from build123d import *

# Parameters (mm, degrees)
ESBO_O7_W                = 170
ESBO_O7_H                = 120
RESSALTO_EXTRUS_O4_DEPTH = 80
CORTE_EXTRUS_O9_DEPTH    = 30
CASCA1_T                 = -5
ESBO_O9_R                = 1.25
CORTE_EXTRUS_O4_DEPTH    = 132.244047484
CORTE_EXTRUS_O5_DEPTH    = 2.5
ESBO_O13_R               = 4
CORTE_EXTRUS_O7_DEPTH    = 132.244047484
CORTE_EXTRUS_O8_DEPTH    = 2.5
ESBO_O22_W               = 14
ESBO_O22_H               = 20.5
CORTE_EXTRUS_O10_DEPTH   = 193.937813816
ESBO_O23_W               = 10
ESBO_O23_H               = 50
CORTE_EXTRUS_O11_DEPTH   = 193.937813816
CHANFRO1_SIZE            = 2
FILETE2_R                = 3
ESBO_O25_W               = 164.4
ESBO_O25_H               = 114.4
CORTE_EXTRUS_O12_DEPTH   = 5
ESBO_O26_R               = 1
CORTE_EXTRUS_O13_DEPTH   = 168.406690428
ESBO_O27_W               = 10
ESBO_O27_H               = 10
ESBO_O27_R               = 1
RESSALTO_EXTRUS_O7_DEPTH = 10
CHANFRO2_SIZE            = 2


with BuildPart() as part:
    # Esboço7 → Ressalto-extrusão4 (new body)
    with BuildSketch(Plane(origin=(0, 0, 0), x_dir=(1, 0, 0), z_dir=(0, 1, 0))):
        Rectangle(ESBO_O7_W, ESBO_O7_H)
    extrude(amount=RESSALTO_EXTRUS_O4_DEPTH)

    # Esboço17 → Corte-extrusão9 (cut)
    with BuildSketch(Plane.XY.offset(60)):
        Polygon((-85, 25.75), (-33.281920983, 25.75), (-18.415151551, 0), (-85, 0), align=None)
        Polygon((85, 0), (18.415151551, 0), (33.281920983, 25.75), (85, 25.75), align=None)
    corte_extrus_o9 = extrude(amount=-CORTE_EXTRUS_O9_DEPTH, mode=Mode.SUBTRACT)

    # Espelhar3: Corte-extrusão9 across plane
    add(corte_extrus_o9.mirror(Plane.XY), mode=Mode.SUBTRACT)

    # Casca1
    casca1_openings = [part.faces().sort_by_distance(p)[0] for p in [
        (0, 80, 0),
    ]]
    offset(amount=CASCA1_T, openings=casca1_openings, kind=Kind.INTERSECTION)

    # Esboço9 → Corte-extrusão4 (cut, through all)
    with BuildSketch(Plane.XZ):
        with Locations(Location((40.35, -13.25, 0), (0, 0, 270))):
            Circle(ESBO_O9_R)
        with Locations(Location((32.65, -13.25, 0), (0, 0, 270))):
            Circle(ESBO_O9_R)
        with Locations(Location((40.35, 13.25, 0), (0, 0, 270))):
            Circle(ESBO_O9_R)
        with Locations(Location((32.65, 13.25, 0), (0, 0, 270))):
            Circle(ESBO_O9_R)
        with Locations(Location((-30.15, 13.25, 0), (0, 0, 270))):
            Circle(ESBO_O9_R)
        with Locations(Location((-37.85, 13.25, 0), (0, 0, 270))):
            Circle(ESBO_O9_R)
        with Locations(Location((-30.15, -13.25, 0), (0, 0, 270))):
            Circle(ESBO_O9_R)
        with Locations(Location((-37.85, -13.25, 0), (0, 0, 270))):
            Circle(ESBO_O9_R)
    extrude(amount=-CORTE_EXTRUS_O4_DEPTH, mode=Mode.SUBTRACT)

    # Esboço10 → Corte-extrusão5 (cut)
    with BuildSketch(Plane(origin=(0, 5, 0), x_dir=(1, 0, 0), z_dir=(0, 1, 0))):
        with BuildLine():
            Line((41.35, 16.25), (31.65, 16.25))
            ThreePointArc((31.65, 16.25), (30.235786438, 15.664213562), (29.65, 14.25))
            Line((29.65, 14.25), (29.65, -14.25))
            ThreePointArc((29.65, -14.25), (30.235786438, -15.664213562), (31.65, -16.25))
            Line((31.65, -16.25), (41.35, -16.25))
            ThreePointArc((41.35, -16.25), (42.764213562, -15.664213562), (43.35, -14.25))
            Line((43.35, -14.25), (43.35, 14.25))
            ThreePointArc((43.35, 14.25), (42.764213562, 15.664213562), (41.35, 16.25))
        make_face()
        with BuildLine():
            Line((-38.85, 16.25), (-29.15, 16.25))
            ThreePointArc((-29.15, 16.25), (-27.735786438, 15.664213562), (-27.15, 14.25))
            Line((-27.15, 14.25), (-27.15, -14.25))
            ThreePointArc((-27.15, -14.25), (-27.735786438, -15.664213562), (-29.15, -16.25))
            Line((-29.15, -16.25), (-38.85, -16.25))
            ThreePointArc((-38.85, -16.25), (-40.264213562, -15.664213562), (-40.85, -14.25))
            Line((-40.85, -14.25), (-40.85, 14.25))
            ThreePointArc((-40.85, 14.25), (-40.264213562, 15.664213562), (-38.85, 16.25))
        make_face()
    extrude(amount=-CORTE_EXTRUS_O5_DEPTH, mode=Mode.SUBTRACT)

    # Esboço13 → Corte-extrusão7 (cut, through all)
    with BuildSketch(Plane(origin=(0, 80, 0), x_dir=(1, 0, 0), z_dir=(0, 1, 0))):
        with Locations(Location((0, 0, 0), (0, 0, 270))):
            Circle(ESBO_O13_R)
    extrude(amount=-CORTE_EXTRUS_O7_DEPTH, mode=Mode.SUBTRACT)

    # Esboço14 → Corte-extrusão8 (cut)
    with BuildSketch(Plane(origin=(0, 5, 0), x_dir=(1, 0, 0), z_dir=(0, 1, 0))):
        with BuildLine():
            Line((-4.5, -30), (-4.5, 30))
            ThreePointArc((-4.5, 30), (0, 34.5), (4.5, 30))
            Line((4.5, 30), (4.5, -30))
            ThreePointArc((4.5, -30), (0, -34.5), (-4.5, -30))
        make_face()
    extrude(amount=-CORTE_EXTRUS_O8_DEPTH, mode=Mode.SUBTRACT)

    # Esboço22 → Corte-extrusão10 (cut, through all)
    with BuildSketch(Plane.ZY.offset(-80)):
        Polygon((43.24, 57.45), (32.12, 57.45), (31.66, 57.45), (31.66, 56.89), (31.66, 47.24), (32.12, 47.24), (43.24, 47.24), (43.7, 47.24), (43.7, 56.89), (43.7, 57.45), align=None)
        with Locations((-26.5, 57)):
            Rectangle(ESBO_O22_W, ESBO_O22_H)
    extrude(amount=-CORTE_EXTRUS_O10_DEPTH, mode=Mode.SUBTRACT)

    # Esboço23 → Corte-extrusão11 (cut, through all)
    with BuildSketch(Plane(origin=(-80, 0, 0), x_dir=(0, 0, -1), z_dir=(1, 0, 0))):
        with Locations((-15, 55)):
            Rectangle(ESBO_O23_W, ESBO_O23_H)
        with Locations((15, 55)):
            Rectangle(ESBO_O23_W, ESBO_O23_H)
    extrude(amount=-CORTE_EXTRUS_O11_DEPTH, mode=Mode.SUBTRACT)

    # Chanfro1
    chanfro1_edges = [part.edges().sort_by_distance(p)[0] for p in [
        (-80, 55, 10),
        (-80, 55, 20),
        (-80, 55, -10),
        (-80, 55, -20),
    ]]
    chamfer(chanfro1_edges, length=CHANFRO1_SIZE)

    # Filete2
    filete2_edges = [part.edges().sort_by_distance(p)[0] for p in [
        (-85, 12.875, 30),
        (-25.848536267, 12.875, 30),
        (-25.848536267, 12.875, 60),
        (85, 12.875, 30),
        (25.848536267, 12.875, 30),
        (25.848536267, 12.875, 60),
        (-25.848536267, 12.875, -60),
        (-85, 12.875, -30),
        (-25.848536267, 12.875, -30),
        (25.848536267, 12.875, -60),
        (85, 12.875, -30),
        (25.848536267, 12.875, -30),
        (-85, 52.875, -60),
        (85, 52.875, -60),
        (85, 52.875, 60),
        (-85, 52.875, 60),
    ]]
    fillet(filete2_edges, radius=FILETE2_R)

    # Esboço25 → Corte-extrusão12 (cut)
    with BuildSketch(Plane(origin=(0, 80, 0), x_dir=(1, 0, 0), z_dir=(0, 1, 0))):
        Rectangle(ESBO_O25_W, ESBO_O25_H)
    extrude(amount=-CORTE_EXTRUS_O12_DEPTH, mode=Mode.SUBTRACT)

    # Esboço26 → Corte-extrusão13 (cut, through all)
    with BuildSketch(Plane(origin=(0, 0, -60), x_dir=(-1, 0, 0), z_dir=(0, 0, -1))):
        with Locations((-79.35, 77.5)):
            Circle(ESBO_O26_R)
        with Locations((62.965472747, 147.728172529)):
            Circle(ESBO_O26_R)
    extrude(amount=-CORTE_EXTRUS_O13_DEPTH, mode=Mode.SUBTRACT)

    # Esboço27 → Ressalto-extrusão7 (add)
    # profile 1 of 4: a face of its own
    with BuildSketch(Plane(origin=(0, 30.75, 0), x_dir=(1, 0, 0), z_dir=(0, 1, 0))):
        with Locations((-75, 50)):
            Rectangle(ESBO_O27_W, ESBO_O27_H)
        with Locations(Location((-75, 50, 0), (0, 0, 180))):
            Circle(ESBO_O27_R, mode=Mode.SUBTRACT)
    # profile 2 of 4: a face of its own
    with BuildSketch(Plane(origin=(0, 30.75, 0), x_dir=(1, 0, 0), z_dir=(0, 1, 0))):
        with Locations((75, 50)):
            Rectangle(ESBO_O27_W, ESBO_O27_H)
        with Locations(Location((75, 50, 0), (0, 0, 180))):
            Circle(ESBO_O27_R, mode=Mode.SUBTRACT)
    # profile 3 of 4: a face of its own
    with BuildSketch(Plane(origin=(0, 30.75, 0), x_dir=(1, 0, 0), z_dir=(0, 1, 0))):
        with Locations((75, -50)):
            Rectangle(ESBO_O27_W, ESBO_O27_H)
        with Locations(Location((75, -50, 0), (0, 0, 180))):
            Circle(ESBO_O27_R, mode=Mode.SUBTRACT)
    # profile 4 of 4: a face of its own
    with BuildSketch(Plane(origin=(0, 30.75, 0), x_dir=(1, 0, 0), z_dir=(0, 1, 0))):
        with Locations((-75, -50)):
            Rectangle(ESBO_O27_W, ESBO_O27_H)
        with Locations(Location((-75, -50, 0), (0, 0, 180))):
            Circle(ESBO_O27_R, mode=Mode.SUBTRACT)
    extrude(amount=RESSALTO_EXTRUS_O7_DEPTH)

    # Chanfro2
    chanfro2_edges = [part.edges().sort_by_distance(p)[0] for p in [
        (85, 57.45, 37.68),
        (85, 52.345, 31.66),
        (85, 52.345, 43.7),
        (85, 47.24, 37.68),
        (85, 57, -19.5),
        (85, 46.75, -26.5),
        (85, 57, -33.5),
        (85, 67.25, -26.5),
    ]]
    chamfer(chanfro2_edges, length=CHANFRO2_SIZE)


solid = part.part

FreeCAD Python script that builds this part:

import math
import FreeCAD as App
import Part
import Sketcher
from FreeCAD import Vector
Q = App.Units.Quantity


def edges_at(feature, points):
    """Names of the edges that pass closest to the given points."""
    edges = feature.Shape.Edges
    near = lambda p: min(range(len(edges)), key=lambda i: edges[i].distToShape(Part.Vertex(*p))[0])
    return sorted({f"Edge{near(p) + 1}" for p in points})


def faces_at(feature, points):
    """Names of the faces that lie closest to the given points."""
    faces = feature.Shape.Faces
    near = lambda p: min(range(len(faces)), key=lambda i: faces[i].distToShape(Part.Vertex(*p))[0])
    return sorted({f"Face{near(p) + 1}" for p in points})

doc = App.newDocument("Part")
body = doc.addObject("PartDesign::Body", "Body")

sketch1 = body.newObject("Sketcher::SketchObject", "Sketch")
sketch1.AttachmentSupport = (doc.getObject("XZ_Plane"), [""])
sketch1.MapMode = "FlatFace"
sketch1.addGeometry(Part.LineSegment(Vector(-85, -60, 0), Vector(-85, 60, 0)), False)
sketch1.addGeometry(Part.LineSegment(Vector(-85, 60, 0), Vector(85, 60, 0)), False)
sketch1.addGeometry(Part.LineSegment(Vector(85, 60, 0), Vector(85, -60, 0)), False)
sketch1.addGeometry(Part.LineSegment(Vector(85, -60, 0), Vector(-85, -60, 0)), False)
sketch1.addConstraint(Sketcher.Constraint("Coincident", 0, 2, 1, 1))
sketch1.addConstraint(Sketcher.Constraint("Coincident", 1, 2, 2, 1))
sketch1.addConstraint(Sketcher.Constraint("Coincident", 2, 2, 3, 1))
sketch1.addConstraint(Sketcher.Constraint("Coincident", 3, 2, 0, 1))
sketch1.addConstraint(Sketcher.Constraint("Vertical", 0))
sketch1.addConstraint(Sketcher.Constraint("Horizontal", 1))
sketch1.addConstraint(Sketcher.Constraint("Vertical", 2))
sketch1.addConstraint(Sketcher.Constraint("Horizontal", 3))
sketch1.addConstraint(Sketcher.Constraint("Symmetric", 0, 2, 2, 2, -1, 1))
sketch1.addConstraint(Sketcher.Constraint("DistanceX", 1, 1, 1, 2, Q("170 mm")))
sketch1.addConstraint(Sketcher.Constraint("DistanceY", 0, 1, 0, 2, Q("120 mm")))
pad1 = body.newObject("PartDesign::Pad", "Pad")
pad1.Profile = sketch1
pad1.Length = 80
pad1.Reversed = True

sketch2 = body.newObject("Sketcher::SketchObject", "Sketch001")
sketch2.AttachmentSupport = (doc.getObject("XY_Plane"), [""])
sketch2.MapMode = "FlatFace"
sketch2.AttachmentOffset = App.Placement(Vector(0, 0, 60), App.Rotation())
sketch2.addGeometry(Part.LineSegment(Vector(-33.281921, 25.75, 0), Vector(-85, 25.75, 0)), False)
sketch2.addGeometry(Part.LineSegment(Vector(-85, 25.75, 0), Vector(-85, 0, 0)), False)
sketch2.addGeometry(Part.LineSegment(Vector(-85, 0, 0), Vector(-18.415152, 0, 0)), False)
sketch2.addGeometry(Part.LineSegment(Vector(-18.415152, 0, 0), Vector(-33.281921, 25.75, 0)), False)
sketch2.addGeometry(Part.LineSegment(Vector(18.415152, 0, 0), Vector(85, 0, 0)), False)
sketch2.addGeometry(Part.LineSegment(Vector(85, 0, 0), Vector(85, 25.75, 0)), False)
sketch2.addGeometry(Part.LineSegment(Vector(85, 25.75, 0), Vector(33.281921, 25.75, 0)), False)
sketch2.addGeometry(Part.LineSegment(Vector(33.281921, 25.75, 0), Vector(18.415152, 0, 0)), False)
sketch2.addConstraint(Sketcher.Constraint("Coincident", 0, 2, 1, 1))
sketch2.addConstraint(Sketcher.Constraint("Coincident", 1, 2, 2, 1))
sketch2.addConstraint(Sketcher.Constraint("Coincident", 2, 2, 3, 1))
sketch2.addConstraint(Sketcher.Constraint("Coincident", 3, 2, 0, 1))
sketch2.addConstraint(Sketcher.Constraint("Coincident", 4, 2, 5, 1))
sketch2.addConstraint(Sketcher.Constraint("Coincident", 5, 2, 6, 1))
sketch2.addConstraint(Sketcher.Constraint("Coincident", 6, 2, 7, 1))
sketch2.addConstraint(Sketcher.Constraint("Coincident", 7, 2, 4, 1))
sketch2.addConstraint(Sketcher.Constraint("Horizontal", 0))
sketch2.addConstraint(Sketcher.Constraint("Vertical", 1))
sketch2.addConstraint(Sketcher.Constraint("Horizontal", 2))
sketch2.addConstraint(Sketcher.Constraint("Horizontal", 4))
sketch2.addConstraint(Sketcher.Constraint("Vertical", 5))
sketch2.addConstraint(Sketcher.Constraint("Horizontal", 6))
sketch2.addConstraint(Sketcher.Constraint("Symmetric", 1, 2, 4, 2, -1, 1))
sketch2.addConstraint(Sketcher.Constraint("Symmetric", 3, 2, 6, 2, -2))
sketch2.addConstraint(Sketcher.Constraint("Symmetric", 2, 2, 7, 2, -2))
sketch2.addConstraint(Sketcher.Constraint("Angle", 3, Q("120 deg")))
sketch2.addConstraint(Sketcher.Constraint("DistanceX", 0, 2, -1, 1, Q("85 mm")))
sketch2.addConstraint(Sketcher.Constraint("DistanceY", 1, 2, 1, 1, Q("25.75 mm")))
sketch2.addConstraint(Sketcher.Constraint("DistanceX", 0, 2, 0, 1, Q("51.718079 mm")))
pocket1 = body.newObject("PartDesign::Pocket", "Pocket")
pocket1.Profile = sketch2
pocket1.Length = 30
doc.recompute()

mirrored = body.newObject("PartDesign::Mirrored", "Mirrored")
mirrored.Originals = [pocket1]
mirrored.MirrorPlane = (doc.getObject("XY_Plane"), [""])
body.Tip = mirrored
doc.recompute()

thickness = body.newObject("PartDesign::Thickness", "Thickness")
thickness.Base = (mirrored, faces_at(mirrored, [(0, 80, 0)]))
thickness.Value = 5
thickness.Reversed = True
thickness.Join = "Intersection"

sketch3 = body.newObject("Sketcher::SketchObject", "Sketch002")
sketch3.AttachmentSupport = (doc.getObject("XZ_Plane"), [""])
sketch3.MapMode = "FlatFace"
sketch3.addGeometry(Part.Circle(Vector(40.35, -13.25, 0), Vector(0, 0, 1), 1.25), False)
sketch3.addGeometry(Part.Circle(Vector(32.65, -13.25, 0), Vector(0, 0, 1), 1.25), False)
sketch3.addGeometry(Part.Circle(Vector(40.35, 13.25, 0), Vector(0, 0, 1), 1.25), False)
sketch3.addGeometry(Part.Circle(Vector(32.65, 13.25, 0), Vector(0, 0, 1), 1.25), False)
sketch3.addGeometry(Part.Circle(Vector(-30.15, 13.25, 0), Vector(0, 0, 1), 1.25), False)
sketch3.addGeometry(Part.Circle(Vector(-37.85, 13.25, 0), Vector(0, 0, 1), 1.25), False)
sketch3.addGeometry(Part.Circle(Vector(-30.15, -13.25, 0), Vector(0, 0, 1), 1.25), False)
sketch3.addGeometry(Part.Circle(Vector(-37.85, -13.25, 0), Vector(0, 0, 1), 1.25), False)
sketch3.addConstraint(Sketcher.Constraint("Equal", 0, 1))
sketch3.addConstraint(Sketcher.Constraint("Equal", 1, 2))
sketch3.addConstraint(Sketcher.Constraint("Equal", 2, 3))
sketch3.addConstraint(Sketcher.Constraint("Equal", 3, 4))
sketch3.addConstraint(Sketcher.Constraint("Equal", 4, 5))
sketch3.addConstraint(Sketcher.Constraint("Equal", 5, 6))
sketch3.addConstraint(Sketcher.Constraint("Equal", 6, 7))
sketch3.addConstraint(Sketcher.Constraint("Symmetric", 0, 3, 2, 3, -1))
sketch3.addConstraint(Sketcher.Constraint("Symmetric", 1, 3, 3, 3, -1))
sketch3.addConstraint(Sketcher.Constraint("Symmetric", 4, 3, 6, 3, -1))
sketch3.addConstraint(Sketcher.Constraint("Symmetric", 5, 3, 7, 3, -1))
sketch3.addConstraint(Sketcher.Constraint("Horizontal", 0, 3, 1, 3))
sketch3.addConstraint(Sketcher.Constraint("Horizontal", 3, 3, 4, 3))
sketch3.addConstraint(Sketcher.Constraint("Horizontal", 4, 3, 5, 3))
sketch3.addConstraint(Sketcher.Constraint("Diameter", 0, Q("2.5 mm")))
sketch3.addConstraint(Sketcher.Constraint("DistanceX", 1, 3, 0, 3, Q("7.7 mm")))
sketch3.addConstraint(Sketcher.Constraint("DistanceY", 0, 3, 2, 3, Q("26.5 mm")))
sketch3.addConstraint(Sketcher.Constraint("DistanceX", 4, 3, 3, 3, Q("62.8 mm")))
sketch3.addConstraint(Sketcher.Constraint("DistanceX", 5, 3, 4, 3, Q("7.7 mm")))
sketch3.addConstraint(Sketcher.Constraint("DistanceX", -1, 1, 0, 3, Q("40.35 mm")))
pocket2 = body.newObject("PartDesign::Pocket", "Pocket001")
pocket2.Profile = sketch3
pocket2.Type = "ThroughAll"

sketch4 = body.newObject("Sketcher::SketchObject", "Sketch003")
sketch4.AttachmentSupport = (doc.getObject("XZ_Plane"), [""])
sketch4.MapMode = "FlatFace"
sketch4.AttachmentOffset = App.Placement(Vector(0, 0, -5), App.Rotation())
sketch4.addGeometry(Part.LineSegment(Vector(41.35, -16.25, 0), Vector(31.65, -16.25, 0)), False)
sketch4.addGeometry(Part.ArcOfCircle(Part.Circle(Vector(31.65, -14.25, 0), Vector(0, 0, 1), 2), math.radians(-180), math.radians(-90)), False)
sketch4.addGeometry(Part.LineSegment(Vector(29.65, -14.25, 0), Vector(29.65, 14.25, 0)), False)
sketch4.addGeometry(Part.ArcOfCircle(Part.Circle(Vector(31.65, 14.25, 0), Vector(0, 0, 1), 2), math.radians(90), math.radians(180)), False)
sketch4.addGeometry(Part.LineSegment(Vector(31.65, 16.25, 0), Vector(41.35, 16.25, 0)), False)
sketch4.addGeometry(Part.ArcOfCircle(Part.Circle(Vector(41.35, 14.25, 0), Vector(0, 0, 1), 2), math.radians(0), math.radians(90)), False)
sketch4.addGeometry(Part.LineSegment(Vector(43.35, 14.25, 0), Vector(43.35, -14.25, 0)), False)
sketch4.addGeometry(Part.ArcOfCircle(Part.Circle(Vector(41.35, -14.25, 0), Vector(0, 0, 1), 2), math.radians(-90), math.radians(0)), False)
sketch4.addGeometry(Part.LineSegment(Vector(-29.15, -16.25, 0), Vector(-38.85, -16.25, 0)), False)
sketch4.addGeometry(Part.ArcOfCircle(Part.Circle(Vector(-38.85, -14.25, 0), Vector(0, 0, 1), 2), math.radians(-180), math.radians(-90)), False)
sketch4.addGeometry(Part.LineSegment(Vector(-40.85, -14.25, 0), Vector(-40.85, 14.25, 0)), False)
sketch4.addGeometry(Part.ArcOfCircle(Part.Circle(Vector(-38.85, 14.25, 0), Vector(0, 0, 1), 2), math.radians(90), math.radians(180)), False)
sketch4.addGeometry(Part.LineSegment(Vector(-38.85, 16.25, 0), Vector(-29.15, 16.25, 0)), False)
sketch4.addGeometry(Part.ArcOfCircle(Part.Circle(Vector(-29.15, 14.25, 0), Vector(0, 0, 1), 2), math.radians(0), math.radians(90)), False)
sketch4.addGeometry(Part.LineSegment(Vector(-27.15, 14.25, 0), Vector(-27.15, -14.25, 0)), False)
sketch4.addGeometry(Part.ArcOfCircle(Part.Circle(Vector(-29.15, -14.25, 0), Vector(0, 0, 1), 2), math.radians(-90), math.radians(0)), False)
sketch4.addConstraint(Sketcher.Constraint("Tangent", 0, 2, 1, 2))
sketch4.addConstraint(Sketcher.Constraint("Tangent", 1, 1, 2, 1))
sketch4.addConstraint(Sketcher.Constraint("Tangent", 2, 2, 3, 2))
sketch4.addConstraint(Sketcher.Constraint("Tangent", 3, 1, 4, 1))
sketch4.addConstraint(Sketcher.Constraint("Tangent", 4, 2, 5, 2))
sketch4.addConstraint(Sketcher.Constraint("Tangent", 5, 1, 6, 1))
sketch4.addConstraint(Sketcher.Constraint("Tangent", 6, 2, 7, 2))
sketch4.addConstraint(Sketcher.Constraint("Tangent", 7, 1, 0, 1))
sketch4.addConstraint(Sketcher.Constraint("Tangent", 8, 2, 9, 2))
sketch4.addConstraint(Sketcher.Constraint("Tangent", 9, 1, 10, 1))
sketch4.addConstraint(Sketcher.Constraint("Tangent", 10, 2, 11, 2))
sketch4.addConstraint(Sketcher.Constraint("Tangent", 11, 1, 12, 1))
sketch4.addConstraint(Sketcher.Constraint("Tangent", 12, 2, 13, 2))
sketch4.addConstraint(Sketcher.Constraint("Tangent", 13, 1, 14, 1))
sketch4.addConstraint(Sketcher.Constraint("Tangent", 14, 2, 15, 2))
sketch4.addConstraint(Sketcher.Constraint("Tangent", 15, 1, 8, 1))
sketch4.addConstraint(Sketcher.Constraint("Horizontal", 0))
sketch4.addConstraint(Sketcher.Constraint("Vertical", 2))
sketch4.addConstraint(Sketcher.Constraint("Horizontal", 4))
sketch4.addConstraint(Sketcher.Constraint("Vertical", 6))
sketch4.addConstraint(Sketcher.Constraint("Horizontal", 8))
sketch4.addConstraint(Sketcher.Constraint("Vertical", 10))
sketch4.addConstraint(Sketcher.Constraint("Horizontal", 12))
sketch4.addConstraint(Sketcher.Constraint("Vertical", 14))
sketch4.addConstraint(Sketcher.Constraint("Equal", 1, 3))
sketch4.addConstraint(Sketcher.Constraint("Equal", 3, 5))
sketch4.addConstraint(Sketcher.Constraint("Equal", 5, 7))
sketch4.addConstraint(Sketcher.Constraint("Equal", 7, 9))
sketch4.addConstraint(Sketcher.Constraint("Equal", 9, 11))
sketch4.addConstraint(Sketcher.Constraint("Equal", 11, 13))
sketch4.addConstraint(Sketcher.Constraint("Equal", 13, 15))
sketch4.addConstraint(Sketcher.Constraint("Horizontal", 7, 3, 9, 3))
sketch4.addConstraint(Sketcher.Constraint("Horizontal", 5, 3, 11, 3))
sketch4.addConstraint(Sketcher.Constraint("Equal", 4, 8))
sketch4.addConstraint(Sketcher.Constraint("Radius", 1, Q("2 mm")))
sketch4.addConstraint(Sketcher.Constraint("DistanceX", 0, 2, 0, 1, Q("9.7 mm")))
sketch4.addConstraint(Sketcher.Constraint("DistanceY", 2, 1, 2, 2, Q("28.5 mm")))
sketch4.addConstraint(Sketcher.Constraint("DistanceX", 9, 3, 1, 3, Q("70.5 mm")))
sketch4.addConstraint(Sketcher.Constraint("DistanceX", -1, 1, 1, 3, Q("31.65 mm")))
sketch4.addConstraint(Sketcher.Constraint("DistanceY", 1, 3, -1, 1, Q("14.25 mm")))
pocket3 = body.newObject("PartDesign::Pocket", "Pocket002")
pocket3.Profile = sketch4
pocket3.Length = 2.5
pocket3.Reversed = True

sketch5 = body.newObject("Sketcher::SketchObject", "Sketch004")
sketch5.AttachmentSupport = (doc.getObject("XZ_Plane"), [""])
sketch5.MapMode = "FlatFace"
sketch5.AttachmentOffset = App.Placement(Vector(0, 0, -80), App.Rotation())
sketch5.addGeometry(Part.Circle(Vector(0, 0, 0), Vector(0, 0, 1), 4), False)
sketch5.addConstraint(Sketcher.Constraint("Coincident", 0, 3, -1, 1))
sketch5.addConstraint(Sketcher.Constraint("Diameter", 0, Q("8 mm")))
pocket4 = body.newObject("PartDesign::Pocket", "Pocket003")
pocket4.Profile = sketch5
pocket4.Type = "ThroughAll"
pocket4.Reversed = True

sketch6 = body.newObject("Sketcher::SketchObject", "Sketch005")
sketch6.AttachmentSupport = (doc.getObject("XZ_Plane"), [""])
sketch6.MapMode = "FlatFace"
sketch6.AttachmentOffset = App.Placement(Vector(0, 0, -5), App.Rotation())
sketch6.addGeometry(Part.LineSegment(Vector(-4.5, -30, 0), Vector(-4.5, 30, 0)), False)
sketch6.addGeometry(Part.ArcOfCircle(Part.Circle(Vector(0, 30, 0), Vector(0, 0, 1), 4.5), math.radians(0), math.radians(180)), False)
sketch6.addGeometry(Part.LineSegment(Vector(4.5, 30, 0), Vector(4.5, -30, 0)), False)
sketch6.addGeometry(Part.ArcOfCircle(Part.Circle(Vector(0, -30, 0), Vector(0, 0, 1), 4.5), math.radians(180), math.radians(360)), False)
sketch6.addConstraint(Sketcher.Constraint("Tangent", 0, 2, 1, 2))
sketch6.addConstraint(Sketcher.Constraint("Tangent", 1, 1, 2, 1))
sketch6.addConstraint(Sketcher.Constraint("Tangent", 2, 2, 3, 2))
sketch6.addConstraint(Sketcher.Constraint("Tangent", 3, 1, 0, 1))
sketch6.addConstraint(Sketcher.Constraint("Vertical", 0))
sketch6.addConstraint(Sketcher.Constraint("Vertical", 2))
sketch6.addConstraint(Sketcher.Constraint("Symmetric", 1, 3, 3, 3, -1, 1))
sketch6.addConstraint(Sketcher.Constraint("Radius", 1, Q("4.5 mm")))
sketch6.addConstraint(Sketcher.Constraint("DistanceY", 0, 1, 0, 2, Q("60 mm")))
pocket5 = body.newObject("PartDesign::Pocket", "Pocket004")
pocket5.Profile = sketch6
pocket5.Length = 2.5
pocket5.Reversed = True

sketch7 = body.newObject("Sketcher::SketchObject", "Sketch006")
sketch7.AttachmentSupport = (doc.getObject("YZ_Plane"), [""])
sketch7.MapMode = "FlatFace"
sketch7.AttachmentOffset = App.Placement(Vector(0, 0, 80), App.Rotation())
sketch7.addGeometry(Part.LineSegment(Vector(57.45, 31.66, 0), Vector(47.24, 31.66, 0)), False)
sketch7.addGeometry(Part.LineSegment(Vector(47.24, 31.66, 0), Vector(47.24, 43.7, 0)), False)
sketch7.addGeometry(Part.LineSegment(Vector(47.24, 43.7, 0), Vector(57.45, 43.7, 0)), False)
sketch7.addGeometry(Part.LineSegment(Vector(57.45, 43.7, 0), Vector(57.45, 31.66, 0)), False)
sketch7.addGeometry(Part.LineSegment(Vector(67.25, -33.5, 0), Vector(46.75, -33.5, 0)), False)
sketch7.addGeometry(Part.LineSegment(Vector(46.75, -33.5, 0), Vector(46.75, -19.5, 0)), False)
sketch7.addGeometry(Part.LineSegment(Vector(46.75, -19.5, 0), Vector(67.25, -19.5, 0)), False)
sketch7.addGeometry(Part.LineSegment(Vector(67.25, -19.5, 0), Vector(67.25, -33.5, 0)), False)
sketch7.addConstraint(Sketcher.Constraint("Coincident", 0, 2, 1, 1))
sketch7.addConstraint(Sketcher.Constraint("Coincident", 1, 2, 2, 1))
sketch7.addConstraint(Sketcher.Constraint("Coincident", 2, 2, 3, 1))
sketch7.addConstraint(Sketcher.Constraint("Coincident", 3, 2, 0, 1))
sketch7.addConstraint(Sketcher.Constraint("Coincident", 4, 2, 5, 1))
sketch7.addConstraint(Sketcher.Constraint("Coincident", 5, 2, 6, 1))
sketch7.addConstraint(Sketcher.Constraint("Coincident", 6, 2, 7, 1))
sketch7.addConstraint(Sketcher.Constraint("Coincident", 7, 2, 4, 1))
sketch7.addConstraint(Sketcher.Constraint("Horizontal", 0))
sketch7.addConstraint(Sketcher.Constraint("Vertical", 1))
sketch7.addConstraint(Sketcher.Constraint("Horizontal", 2))
sketch7.addConstraint(Sketcher.Constraint("Vertical", 3))
sketch7.addConstraint(Sketcher.Constraint("Horizontal", 4))
sketch7.addConstraint(Sketcher.Constraint("Vertical", 5))
sketch7.addConstraint(Sketcher.Constraint("Horizontal", 6))
sketch7.addConstraint(Sketcher.Constraint("Vertical", 7))
sketch7.addConstraint(Sketcher.Constraint("DistanceY", 5, 1, 5, 2, Q("14 mm")))
sketch7.addConstraint(Sketcher.Constraint("DistanceX", 4, 2, 4, 1, Q("20.5 mm")))
sketch7.addConstraint(Sketcher.Constraint("DistanceX", 0, 2, 0, 1, Q("10.21 mm")))
sketch7.addConstraint(Sketcher.Constraint("DistanceY", 1, 1, 1, 2, Q("12.04 mm")))
sketch7.addConstraint(Sketcher.Constraint("DistanceY", -1, 1, 1, 2, Q("43.7 mm")))
sketch7.addConstraint(Sketcher.Constraint("DistanceY", 4, 2, -1, 1, Q("33.5 mm")))
sketch7.addConstraint(Sketcher.Constraint("DistanceX", 4, 2, 3, 2, Q("10.7 mm")))
sketch7.addConstraint(Sketcher.Constraint("DistanceX", -1, 1, 0, 2, Q("47.24 mm")))
pocket6 = body.newObject("PartDesign::Pocket", "Pocket005")
pocket6.Profile = sketch7
pocket6.Type = "ThroughAll"
pocket6.Reversed = True

sketch8 = body.newObject("Sketcher::SketchObject", "Sketch007")
sketch8.AttachmentSupport = (doc.getObject("YZ_Plane"), [""])
sketch8.MapMode = "FlatFace"
sketch8.AttachmentOffset = App.Placement(Vector(0, 0, -80), App.Rotation())
sketch8.addGeometry(Part.LineSegment(Vector(80, 20, 0), Vector(30, 20, 0)), False)
sketch8.addGeometry(Part.LineSegment(Vector(30, 20, 0), Vector(30, 10, 0)), False)
sketch8.addGeometry(Part.LineSegment(Vector(30, 10, 0), Vector(80, 10, 0)), False)
sketch8.addGeometry(Part.LineSegment(Vector(80, 10, 0), Vector(80, 20, 0)), False)
sketch8.addGeometry(Part.LineSegment(Vector(80, -10, 0), Vector(30, -10, 0)), False)
sketch8.addGeometry(Part.LineSegment(Vector(30, -10, 0), Vector(30, -20, 0)), False)
sketch8.addGeometry(Part.LineSegment(Vector(30, -20, 0), Vector(80, -20, 0)), False)
sketch8.addGeometry(Part.LineSegment(Vector(80, -20, 0), Vector(80, -10, 0)), False)
sketch8.addConstraint(Sketcher.Constraint("Coincident", 0, 2, 1, 1))
sketch8.addConstraint(Sketcher.Constraint("Coincident", 1, 2, 2, 1))
sketch8.addConstraint(Sketcher.Constraint("Coincident", 2, 2, 3, 1))
sketch8.addConstraint(Sketcher.Constraint("Coincident", 3, 2, 0, 1))
sketch8.addConstraint(Sketcher.Constraint("Coincident", 4, 2, 5, 1))
sketch8.addConstraint(Sketcher.Constraint("Coincident", 5, 2, 6, 1))
sketch8.addConstraint(Sketcher.Constraint("Coincident", 6, 2, 7, 1))
sketch8.addConstraint(Sketcher.Constraint("Coincident", 7, 2, 4, 1))
sketch8.addConstraint(Sketcher.Constraint("Horizontal", 0))
sketch8.addConstraint(Sketcher.Constraint("Vertical", 1))
sketch8.addConstraint(Sketcher.Constraint("Horizontal", 2))
sketch8.addConstraint(Sketcher.Constraint("Vertical", 3))
sketch8.addConstraint(Sketcher.Constraint("Horizontal", 4))
sketch8.addConstraint(Sketcher.Constraint("Vertical", 5))
sketch8.addConstraint(Sketcher.Constraint("Horizontal", 6))
sketch8.addConstraint(Sketcher.Constraint("Vertical", 7))
sketch8.addConstraint(Sketcher.Constraint("Symmetric", 1, 2, 4, 2, -1))
sketch8.addConstraint(Sketcher.Constraint("Symmetric", 3, 2, 6, 2, -1))
sketch8.addConstraint(Sketcher.Constraint("DistanceX", 0, 2, 0, 1, Q("50 mm")))
sketch8.addConstraint(Sketcher.Constraint("DistanceY", 1, 2, 1, 1, Q("10 mm")))
sketch8.addConstraint(Sketcher.Constraint("DistanceX", -1, 1, 0, 2, Q("30 mm")))
sketch8.addConstraint(Sketcher.Constraint("DistanceY", -1, 1, 0, 2, Q("20 mm")))
pocket7 = body.newObject("PartDesign::Pocket", "Pocket006")
pocket7.Profile = sketch8
pocket7.Type = "ThroughAll"
doc.recompute()

chamfer = body.newObject("PartDesign::Chamfer", "Chamfer")
chamfer.Base = (pocket7, edges_at(pocket7, [
    (-80, 55, 10),
    (-80, 55, 20),
    (-80, 55, -10),
    (-80, 55, -20),
]))
chamfer.Size = 2
doc.recompute()

fillet = body.newObject("PartDesign::Fillet", "Fillet")
fillet.Base = (chamfer, edges_at(chamfer, [
    (-85, 12.875, 30),
    (-25.849, 12.875, 30),
    (-25.849, 12.875, 60),
    (85, 12.875, 30),
    (25.849, 12.875, 30),
    (25.849, 12.875, 60),
    (-25.849, 12.875, -60),
    (-85, 12.875, -30),
    (-25.849, 12.875, -30),
    (25.849, 12.875, -60),
    (85, 12.875, -30),
    (25.849, 12.875, -30),
    (-85, 52.875, -60),
    (85, 52.875, -60),
    (85, 52.875, 60),
    (-85, 52.875, 60),
]))
fillet.Radius = 3

sketch9 = body.newObject("Sketcher::SketchObject", "Sketch008")
sketch9.AttachmentSupport = (doc.getObject("XZ_Plane"), [""])
sketch9.MapMode = "FlatFace"
sketch9.AttachmentOffset = App.Placement(Vector(0, 0, -80), App.Rotation())
sketch9.addGeometry(Part.LineSegment(Vector(-82.2, -57.2, 0), Vector(-82.2, 57.2, 0)), False)
sketch9.addGeometry(Part.LineSegment(Vector(-82.2, 57.2, 0), Vector(82.2, 57.2, 0)), False)
sketch9.addGeometry(Part.LineSegment(Vector(82.2, 57.2, 0), Vector(82.2, -57.2, 0)), False)
sketch9.addGeometry(Part.LineSegment(Vector(82.2, -57.2, 0), Vector(-82.2, -57.2, 0)), False)
sketch9.addConstraint(Sketcher.Constraint("Coincident", 0, 2, 1, 1))
sketch9.addConstraint(Sketcher.Constraint("Coincident", 1, 2, 2, 1))
sketch9.addConstraint(Sketcher.Constraint("Coincident", 2, 2, 3, 1))
sketch9.addConstraint(Sketcher.Constraint("Coincident", 3, 2, 0, 1))
sketch9.addConstraint(Sketcher.Constraint("Vertical", 0))
sketch9.addConstraint(Sketcher.Constraint("Horizontal", 1))
sketch9.addConstraint(Sketcher.Constraint("Vertical", 2))
sketch9.addConstraint(Sketcher.Constraint("Horizontal", 3))
sketch9.addConstraint(Sketcher.Constraint("Symmetric", 0, 2, 2, 2, -1, 1))
sketch9.addConstraint(Sketcher.Constraint("DistanceX", 1, 1, 1, 2, Q("164.4 mm")))
sketch9.addConstraint(Sketcher.Constraint("DistanceY", 0, 1, 0, 2, Q("114.4 mm")))
pocket8 = body.newObject("PartDesign::Pocket", "Pocket007")
pocket8.Profile = sketch9
pocket8.Length = 5
pocket8.Reversed = True

sketch10 = body.newObject("Sketcher::SketchObject", "Sketch009")
sketch10.AttachmentSupport = (doc.getObject("XY_Plane"), [""])
sketch10.MapMode = "FlatFace"
sketch10.AttachmentOffset = App.Placement(Vector(0, 0, -60), App.Rotation())
sketch10.addGeometry(Part.Circle(Vector(79.35, 77.5, 0), Vector(0, 0, 1), 1), False)
sketch10.addGeometry(Part.Circle(Vector(-62.965473, 147.728173, 0), Vector(0, 0, 1), 1), False)
sketch10.addConstraint(Sketcher.Constraint("Equal", 0, 1))
sketch10.addConstraint(Sketcher.Constraint("Diameter", 0, Q("2 mm")))
sketch10.addConstraint(Sketcher.Constraint("DistanceY", -1, 1, 0, 3, Q("77.5 mm")))
sketch10.addConstraint(Sketcher.Constraint("DistanceX", -1, 1, 0, 3, Q("79.35 mm")))
sketch10.addConstraint(Sketcher.Constraint("DistanceX", 1, 3, -1, 1, Q("62.965473 mm")))
sketch10.addConstraint(Sketcher.Constraint("DistanceY", -1, 1, 1, 3, Q("147.728173 mm")))
pocket9 = body.newObject("PartDesign::Pocket", "Pocket008")
pocket9.Profile = sketch10
pocket9.Type = "ThroughAll"
pocket9.Reversed = True

sketch11 = body.newObject("Sketcher::SketchObject", "Sketch010")
sketch11.AttachmentSupport = (doc.getObject("XZ_Plane"), [""])
sketch11.MapMode = "FlatFace"
sketch11.AttachmentOffset = App.Placement(Vector(0, 0, -30.75), App.Rotation())
sketch11.addGeometry(Part.LineSegment(Vector(-80, -55, 0), Vector(-80, -45, 0)), False)
sketch11.addGeometry(Part.LineSegment(Vector(-80, -45, 0), Vector(-70, -45, 0)), False)
sketch11.addGeometry(Part.LineSegment(Vector(-70, -45, 0), Vector(-70, -55, 0)), False)
sketch11.addGeometry(Part.LineSegment(Vector(-70, -55, 0), Vector(-80, -55, 0)), False)
sketch11.addGeometry(Part.Circle(Vector(-75, -50, 0), Vector(0, 0, 1), 1), False)
sketch11.addGeometry(Part.LineSegment(Vector(70, -55, 0), Vector(70, -45, 0)), False)
sketch11.addGeometry(Part.LineSegment(Vector(70, -45, 0), Vector(80, -45, 0)), False)
sketch11.addGeometry(Part.LineSegment(Vector(80, -45, 0), Vector(80, -55, 0)), False)
sketch11.addGeometry(Part.LineSegment(Vector(80, -55, 0), Vector(70, -55, 0)), False)
sketch11.addGeometry(Part.Circle(Vector(75, -50, 0), Vector(0, 0, 1), 1), False)
sketch11.addGeometry(Part.LineSegment(Vector(70, 45, 0), Vector(70, 55, 0)), False)
sketch11.addGeometry(Part.LineSegment(Vector(70, 55, 0), Vector(80, 55, 0)), False)
sketch11.addGeometry(Part.LineSegment(Vector(80, 55, 0), Vector(80, 45, 0)), False)
sketch11.addGeometry(Part.LineSegment(Vector(80, 45, 0), Vector(70, 45, 0)), False)
sketch11.addGeometry(Part.Circle(Vector(75, 50, 0), Vector(0, 0, 1), 1), False)
sketch11.addGeometry(Part.LineSegment(Vector(-80, 45, 0), Vector(-80, 55, 0)), False)
sketch11.addGeometry(Part.LineSegment(Vector(-80, 55, 0), Vector(-70, 55, 0)), False)
sketch11.addGeometry(Part.LineSegment(Vector(-70, 55, 0), Vector(-70, 45, 0)), False)
sketch11.addGeometry(Part.LineSegment(Vector(-70, 45, 0), Vector(-80, 45, 0)), False)
sketch11.addGeometry(Part.Circle(Vector(-75, 50, 0), Vector(0, 0, 1), 1), False)
sketch11.addConstraint(Sketcher.Constraint("Coincident", 0, 2, 1, 1))
sketch11.addConstraint(Sketcher.Constraint("Coincident", 1, 2, 2, 1))
sketch11.addConstraint(Sketcher.Constraint("Coincident", 2, 2, 3, 1))
sketch11.addConstraint(Sketcher.Constraint("Coincident", 3, 2, 0, 1))
sketch11.addConstraint(Sketcher.Constraint("Coincident", 5, 2, 6, 1))
sketch11.addConstraint(Sketcher.Constraint("Coincident", 6, 2, 7, 1))
sketch11.addConstraint(Sketcher.Constraint("Coincident", 7, 2, 8, 1))
sketch11.addConstraint(Sketcher.Constraint("Coincident", 8, 2, 5, 1))
sketch11.addConstraint(Sketcher.Constraint("Coincident", 10, 2, 11, 1))
sketch11.addConstraint(Sketcher.Constraint("Coincident", 11, 2, 12, 1))
sketch11.addConstraint(Sketcher.Constraint("Coincident", 12, 2, 13, 1))
sketch11.addConstraint(Sketcher.Constraint("Coincident", 13, 2, 10, 1))
sketch11.addConstraint(Sketcher.Constraint("Coincident", 15, 2, 16, 1))
sketch11.addConstraint(Sketcher.Constraint("Coincident", 16, 2, 17, 1))
sketch11.addConstraint(Sketcher.Constraint("Coincident", 17, 2, 18, 1))
sketch11.addConstraint(Sketcher.Constraint("Coincident", 18, 2, 15, 1))
sketch11.addConstraint(Sketcher.Constraint("Vertical", 0))
sketch11.addConstraint(Sketcher.Constraint("Horizontal", 1))
sketch11.addConstraint(Sketcher.Constraint("Vertical", 2))
sketch11.addConstraint(Sketcher.Constraint("Horizontal", 3))
sketch11.addConstraint(Sketcher.Constraint("Vertical", 5))
sketch11.addConstraint(Sketcher.Constraint("Horizontal", 6))
sketch11.addConstraint(Sketcher.Constraint("Vertical", 7))
sketch11.addConstraint(Sketcher.Constraint("Horizontal", 8))
sketch11.addConstraint(Sketcher.Constraint("Vertical", 10))
sketch11.addConstraint(Sketcher.Constraint("Horizontal", 11))
sketch11.addConstraint(Sketcher.Constraint("Vertical", 12))
sketch11.addConstraint(Sketcher.Constraint("Horizontal", 13))
sketch11.addConstraint(Sketcher.Constraint("Vertical", 15))
sketch11.addConstraint(Sketcher.Constraint("Horizontal", 16))
sketch11.addConstraint(Sketcher.Constraint("Vertical", 17))
sketch11.addConstraint(Sketcher.Constraint("Horizontal", 18))
sketch11.addConstraint(Sketcher.Constraint("Equal", 4, 9))
sketch11.addConstraint(Sketcher.Constraint("Equal", 9, 14))
sketch11.addConstraint(Sketcher.Constraint("Equal", 14, 19))
sketch11.addConstraint(Sketcher.Constraint("Symmetric", 4, 3, 14, 3, -1, 1))
sketch11.addConstraint(Sketcher.Constraint("Symmetric", 9, 3, 19, 3, -1, 1))
sketch11.addConstraint(Sketcher.Constraint("Symmetric", 2, 2, 10, 2, -1, 1))
sketch11.addConstraint(Sketcher.Constraint("Symmetric", 0, 2, 12, 2, -1, 1))
sketch11.addConstraint(Sketcher.Constraint("Symmetric", 7, 2, 15, 2, -1, 1))
sketch11.addConstraint(Sketcher.Constraint("Symmetric", 5, 2, 17, 2, -1, 1))
sketch11.addConstraint(Sketcher.Constraint("Symmetric", 4, 3, 9, 3, -2))
sketch11.addConstraint(Sketcher.Constraint("Symmetric", 1, 2, 5, 2, -2))
sketch11.addConstraint(Sketcher.Constraint("Symmetric", 3, 2, 7, 2, -2))
sketch11.addConstraint(Sketcher.Constraint("Equal", 18, 0))
sketch11.addConstraint(Sketcher.Constraint("Diameter", 4, Q("2 mm")))
sketch11.addConstraint(Sketcher.Constraint("DistanceX", 1, 1, 1, 2, Q("10 mm")))
sketch11.addConstraint(Sketcher.Constraint("DistanceX", 4, 3, -1, 1, Q("75 mm")))
sketch11.addConstraint(Sketcher.Constraint("DistanceY", 4, 3, -1, 1, Q("50 mm")))
sketch11.addConstraint(Sketcher.Constraint("DistanceX", 0, 2, -1, 1, Q("80 mm")))
sketch11.addConstraint(Sketcher.Constraint("DistanceY", 0, 2, -1, 1, Q("45 mm")))
pad2 = body.newObject("PartDesign::Pad", "Pad001")
pad2.Profile = sketch11
pad2.Length = 10
pad2.Reversed = True
doc.recompute()

chamfer2 = body.newObject("PartDesign::Chamfer", "Chamfer001")
chamfer2.Base = (pad2, edges_at(pad2, [
    (85, 57.45, 37.68),
    (85, 52.345, 31.66),
    (85, 52.345, 43.7),
    (85, 47.24, 37.68),
    (85, 57, -19.5),
    (85, 46.75, -26.5),
    (85, 57, -33.5),
    (85, 67.25, -26.5),
]))
chamfer2.Size = 2

doc.recompute()
